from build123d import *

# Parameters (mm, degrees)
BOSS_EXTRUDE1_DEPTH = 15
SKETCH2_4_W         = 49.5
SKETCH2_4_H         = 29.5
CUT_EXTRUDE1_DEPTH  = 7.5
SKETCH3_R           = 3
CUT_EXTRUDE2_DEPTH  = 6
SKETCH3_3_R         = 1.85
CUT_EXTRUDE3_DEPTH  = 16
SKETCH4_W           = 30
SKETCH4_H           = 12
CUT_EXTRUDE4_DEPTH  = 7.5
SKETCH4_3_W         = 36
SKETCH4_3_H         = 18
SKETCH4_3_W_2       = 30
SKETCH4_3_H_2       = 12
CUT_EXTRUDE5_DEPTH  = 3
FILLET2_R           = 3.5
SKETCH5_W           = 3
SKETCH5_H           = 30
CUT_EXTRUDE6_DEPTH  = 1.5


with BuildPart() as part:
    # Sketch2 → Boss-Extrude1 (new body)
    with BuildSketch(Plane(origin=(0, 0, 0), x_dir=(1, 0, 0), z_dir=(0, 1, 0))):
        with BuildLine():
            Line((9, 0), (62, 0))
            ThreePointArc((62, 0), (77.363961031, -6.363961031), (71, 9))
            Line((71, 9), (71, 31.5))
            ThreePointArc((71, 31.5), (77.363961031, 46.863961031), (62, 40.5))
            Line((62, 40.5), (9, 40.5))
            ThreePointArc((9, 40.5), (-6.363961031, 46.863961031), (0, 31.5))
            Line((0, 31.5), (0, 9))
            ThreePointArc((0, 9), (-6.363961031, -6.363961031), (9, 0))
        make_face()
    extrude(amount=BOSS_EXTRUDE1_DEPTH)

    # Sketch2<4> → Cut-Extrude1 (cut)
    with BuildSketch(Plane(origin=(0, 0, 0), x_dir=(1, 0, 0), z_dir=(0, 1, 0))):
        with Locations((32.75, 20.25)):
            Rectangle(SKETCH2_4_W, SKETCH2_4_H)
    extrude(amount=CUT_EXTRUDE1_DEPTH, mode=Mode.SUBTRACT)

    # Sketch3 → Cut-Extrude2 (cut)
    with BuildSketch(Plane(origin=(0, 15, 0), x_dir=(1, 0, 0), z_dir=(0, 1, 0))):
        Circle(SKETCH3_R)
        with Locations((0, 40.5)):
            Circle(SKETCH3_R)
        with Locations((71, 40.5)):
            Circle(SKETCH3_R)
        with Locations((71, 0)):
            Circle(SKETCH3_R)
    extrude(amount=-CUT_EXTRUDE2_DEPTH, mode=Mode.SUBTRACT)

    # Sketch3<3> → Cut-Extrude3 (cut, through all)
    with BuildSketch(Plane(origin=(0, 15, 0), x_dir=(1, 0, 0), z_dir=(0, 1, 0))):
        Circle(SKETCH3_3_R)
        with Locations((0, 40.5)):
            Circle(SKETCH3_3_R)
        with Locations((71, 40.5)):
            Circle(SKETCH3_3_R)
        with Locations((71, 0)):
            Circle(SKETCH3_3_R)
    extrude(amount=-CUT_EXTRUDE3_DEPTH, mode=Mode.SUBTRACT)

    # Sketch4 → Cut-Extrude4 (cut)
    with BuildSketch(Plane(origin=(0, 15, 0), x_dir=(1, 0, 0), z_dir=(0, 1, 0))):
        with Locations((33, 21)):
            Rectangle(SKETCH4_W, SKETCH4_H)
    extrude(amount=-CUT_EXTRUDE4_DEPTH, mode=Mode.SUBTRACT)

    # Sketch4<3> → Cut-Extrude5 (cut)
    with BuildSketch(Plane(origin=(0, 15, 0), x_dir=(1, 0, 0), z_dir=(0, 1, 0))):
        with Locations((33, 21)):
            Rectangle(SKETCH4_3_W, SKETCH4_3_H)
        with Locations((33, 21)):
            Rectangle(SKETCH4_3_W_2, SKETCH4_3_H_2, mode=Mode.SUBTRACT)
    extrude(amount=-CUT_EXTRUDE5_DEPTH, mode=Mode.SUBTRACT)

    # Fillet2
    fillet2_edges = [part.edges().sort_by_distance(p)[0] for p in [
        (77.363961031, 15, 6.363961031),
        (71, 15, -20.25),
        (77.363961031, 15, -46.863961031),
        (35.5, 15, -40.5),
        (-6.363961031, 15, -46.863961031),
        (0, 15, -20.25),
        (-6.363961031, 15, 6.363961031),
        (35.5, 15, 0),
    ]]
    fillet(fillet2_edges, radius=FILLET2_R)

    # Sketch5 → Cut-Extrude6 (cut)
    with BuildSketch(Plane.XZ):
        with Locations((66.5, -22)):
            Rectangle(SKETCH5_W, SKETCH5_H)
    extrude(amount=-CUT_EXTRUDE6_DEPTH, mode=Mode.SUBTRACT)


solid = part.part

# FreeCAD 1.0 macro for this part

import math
import FreeCAD as App
import Part
import Sketcher
Q = App.Units.Quantity


def edges_at(feature, points):
    """Names of the edges that pass closest to the given points."""
    edges = feature.Shape.Edges
    near = lambda p: min(range(len(edges)), key=lambda i: edges[i].distToShape(Part.Vertex(*p))[0])
    return sorted({f"Edge{near(p) + 1}" for p in points})


def add_polygon(sketch, points):
    """Adds a closed chain of lines whose ends are joined by coincident constraints."""
    first, n = sketch.GeometryCount, len(points)
    for a, b in zip(points, points[1:] + points[:1]):
        sketch.addGeometry(Part.LineSegment(App.Vector(*a, 0), App.Vector(*b, 0)), False)
    for i in range(n):
        sketch.addConstraint(Sketcher.Constraint("Coincident", first + i, 2, first + (i + 1) % n, 1))

doc = App.newDocument("Part")
body = doc.addObject("PartDesign::Body", "Body")

# Sketch on XZ plane
sketch1 = body.newObject("Sketcher::SketchObject", "Sketch")
sketch1.AttachmentSupport = (doc.getObject("XZ_Plane"), [""])
sketch1.MapMode = "FlatFace"
sketch1.addGeometry([
    Part.LineSegment(App.Vector(9, 0, 0), App.Vector(62, 0, 0)),  # 0
    Part.ArcOfCircle(Part.Circle(App.Vector(71, 0, 0), App.Vector(0, 0, 1), 9), math.radians(-90), math.radians(180)),  # 1
    Part.LineSegment(App.Vector(71, -9, 0), App.Vector(71, -32, 0)),  # 2
    Part.ArcOfCircle(Part.Circle(App.Vector(71, -40, 0), App.Vector(0, 0, 1), 9), math.radians(180), math.radians(450)),  # 3
    Part.LineSegment(App.Vector(62, -40, 0), App.Vector(9, -40, 0)),  # 4
    Part.ArcOfCircle(Part.Circle(App.Vector(0, -40, 0), App.Vector(0, 0, 1), 9), math.radians(90), math.radians(360)),  # 5
    Part.LineSegment(App.Vector(0, -32, 0), App.Vector(0, -9, 0)),  # 6
    Part.ArcOfCircle(Part.Circle(App.Vector(0, 0, 0), App.Vector(0, 0, 1), 9), math.radians(0), math.radians(270)),  # 7
], False)
sketch1.addConstraint([
    Sketcher.Constraint("Coincident", 0, 2, 1, 2),
    Sketcher.Constraint("Coincident", 1, 1, 2, 1),
    Sketcher.Constraint("Coincident", 2, 2, 3, 2),
    Sketcher.Constraint("Coincident", 3, 1, 4, 1),
    Sketcher.Constraint("Coincident", 4, 2, 5, 2),
    Sketcher.Constraint("Coincident", 5, 1, 6, 1),
    Sketcher.Constraint("Coincident", 6, 2, 7, 2),
    Sketcher.Constraint("Coincident", 7, 1, 0, 1),
    Sketcher.Constraint("Horizontal", 0),
    Sketcher.Constraint("Vertical", 2),
    Sketcher.Constraint("Horizontal", 4),
    Sketcher.Constraint("Vertical", 6),
    Sketcher.Constraint("Coincident", 7, 3, -1, 1),
    Sketcher.Constraint("Equal", 1, 3),
    Sketcher.Constraint("Equal", 3, 5),
    Sketcher.Constraint("Equal", 5, 7),
    Sketcher.Constraint("PointOnObject", 1, 3, -1),
    Sketcher.Constraint("PointOnObject", 5, 3, -2),
    Sketcher.Constraint("PointOnObject", 0, 2, -1),
    Sketcher.Constraint("PointOnObject", 5, 1, -2),
    Sketcher.Constraint("Horizontal", 3, 3, 5, 3),
    Sketcher.Constraint("Horizontal", 5, 3, 3, 1),
    Sketcher.Constraint("Vertical", 1, 3, 3, 3),
    Sketcher.Constraint("Vertical", 3, 3, 1, 1),
    Sketcher.Constraint("Radius", 1, Q("9 mm")),
    Sketcher.Constraint("DistanceX", 0, 1, 0, 2, Q("53 mm")),
    Sketcher.Constraint("DistanceY", 2, 2, 2, 1, Q("22.5 mm")),
])
pad1 = body.newObject("PartDesign::Pad", "Pad")
pad1.Profile = sketch1
pad1.Length = 15
pad1.Reversed = True

# Sketch on XZ plane
sketch2 = body.newObject("Sketcher::SketchObject", "Sketch001")
sketch2.AttachmentSupport = (doc.getObject("XZ_Plane"), [""])
sketch2.MapMode = "FlatFace"
add_polygon(sketch2, [(8, -35), (8, -6), (58, -6), (58, -35)])  # lines 0-3
sketch2.addConstraint([
    Sketcher.Constraint("Vertical", 0),
    Sketcher.Constraint("Horizontal", 1),
    Sketcher.Constraint("Vertical", 2),
    Sketcher.Constraint("Horizontal", 3),
    Sketcher.Constraint("DistanceX", 1, 1, 1, 2, Q("49.5 mm")),
    Sketcher.Constraint("DistanceY", 0, 1, 0, 2, Q("29.5 mm")),
    Sketcher.Constraint("DistanceX", -1, 1, 0, 2, Q("8 mm")),
    Sketcher.Constraint("DistanceY", 2, 2, -1, 1, Q("35 mm")),
])
pocket1 = body.newObject("PartDesign::Pocket", "Pocket")
pocket1.Profile = sketch2
pocket1.Length = 7.5

# Sketch on XZ plane
sketch3 = body.newObject("Sketcher::SketchObject", "Sketch002")
sketch3.AttachmentSupport = (doc.getObject("XZ_Plane"), [""])
sketch3.MapMode = "FlatFace"
sketch3.AttachmentOffset = App.Placement(App.Vector(0, 0, -15), App.Rotation())
sketch3.addGeometry([
    Part.Circle(App.Vector(0, 0, 0), App.Vector(0, 0, 1), 3),
    Part.Circle(App.Vector(0, -40.5, 0), App.Vector(0, 0, 1), 3),
    Part.Circle(App.Vector(71, -40.5, 0), App.Vector(0, 0, 1), 3),
    Part.Circle(App.Vector(71, 0, 0), App.Vector(0, 0, 1), 3),
], False)
sketch3.addConstraint([
    Sketcher.Constraint("Coincident", 0, 3, -1, 1),
    Sketcher.Constraint("Equal", 0, 1),
    Sketcher.Constraint("Equal", 1, 2),
    Sketcher.Constraint("Equal", 2, 3),
    Sketcher.Constraint("PointOnObject", 1, 3, -2),
    Sketcher.Constraint("PointOnObject", 3, 3, -1),
    Sketcher.Constraint("Horizontal", 1, 3, 2, 3),
    Sketcher.Constraint("Vertical", 2, 3, 3, 3),
    Sketcher.Constraint("Diameter", 0, Q("6 mm")),
    Sketcher.Constraint("DistanceX", -1, 1, 2, 3, Q("71 mm")),
    Sketcher.Constraint("DistanceY", 1, 3, -1, 1, Q("40.5 mm")),
])
pocket2 = body.newObject("PartDesign::Pocket", "Pocket001")
pocket2.Profile = sketch3
pocket2.Length = 6
pocket2.Reversed = True

# Sketch on XZ plane
sketch4 = body.newObject("Sketcher::SketchObject", "Sketch003")
sketch4.AttachmentSupport = (doc.getObject("XZ_Plane"), [""])
sketch4.MapMode = "FlatFace"
sketch4.AttachmentOffset = App.Placement(App.Vector(0, 0, -15), App.Rotation())
sketch4.addGeometry([
    Part.Circle(App.Vector(0, 0, 0), App.Vector(0, 0, 1), 1.9),
    Part.Circle(App.Vector(0, -40.5, 0), App.Vector(0, 0, 1), 1.9),
    Part.Circle(App.Vector(71, -40.5, 0), App.Vector(0, 0, 1), 1.9),
    Part.Circle(App.Vector(71, 0, 0), App.Vector(0, 0, 1), 1.9),
], False)
sketch4.addConstraint([
    Sketcher.Constraint("Coincident", 0, 3, -1, 1),
    Sketcher.Constraint("Equal", 0, 1),
    Sketcher.Constraint("Equal", 1, 2),
    Sketcher.Constraint("Equal", 2, 3),
    Sketcher.Constraint("PointOnObject", 1, 3, -2),
    Sketcher.Constraint("PointOnObject", 3, 3, -1),
    Sketcher.Constraint("Horizontal", 1, 3, 2, 3),
    Sketcher.Constraint("Vertical", 2, 3, 3, 3),
    Sketcher.Constraint("Diameter", 0, Q("3.7 mm")),
    Sketcher.Constraint("DistanceX", -1, 1, 2, 3, Q("71 mm")),
    Sketcher.Constraint("DistanceY", 1, 3, -1, 1, Q("40.5 mm")),
])
pocket3 = body.newObject("PartDesign::Pocket", "Pocket002")
pocket3.Profile = sketch4
pocket3.Type = "ThroughAll"
pocket3.Reversed = True

# Sketch on XZ plane
sketch5 = body.newObject("Sketcher::SketchObject", "Sketch004")
sketch5.AttachmentSupport = (doc.getObject("XZ_Plane"), [""])
sketch5.MapMode = "FlatFace"
sketch5.AttachmentOffset = App.Placement(App.Vector(0, 0, -15), App.Rotation())
add_polygon(sketch5, [(18, -27), (18, -15), (48, -15), (48, -27)])  # lines 0-3
sketch5.addConstraint([
    Sketcher.Constraint("Vertical", 0),
    Sketcher.Constraint("Horizontal", 1),
    Sketcher.Constraint("Vertical", 2),
    Sketcher.Constraint("Horizontal", 3),
    Sketcher.Constraint("DistanceX", 1, 1, 1, 2, Q("30 mm")),
    Sketcher.Constraint("DistanceY", 0, 1, 0, 2, Q("12 mm")),
    Sketcher.Constraint("DistanceX", -1, 1, 0, 2, Q("18 mm")),
    Sketcher.Constraint("DistanceY", 0, 2, -1, 1, Q("15 mm")),
])
pocket4 = body.newObject("PartDesign::Pocket", "Pocket003")
pocket4.Profile = sketch5
pocket4.Length = 7.5
pocket4.Reversed = True

# Sketch on XZ plane
sketch6 = body.newObject("Sketcher::SketchObject", "Sketch005")
sketch6.AttachmentSupport = (doc.getObject("XZ_Plane"), [""])
sketch6.MapMode = "FlatFace"
sketch6.AttachmentOffset = App.Placement(App.Vector(0, 0, -15), App.Rotation())
add_polygon(sketch6, [(15, -30), (15, -12), (51, -12), (51, -30)])  # lines 0-3
add_polygon(sketch6, [(48, -15), (18, -15), (18, -27), (48, -27)])  # lines 4-7
sketch6.addConstraint([
    Sketcher.Constraint("Vertical", 0),
    Sketcher.Constraint("Horizontal", 1),
    Sketcher.Constraint("Vertical", 2),
    Sketcher.Constraint("Horizontal", 3),
    Sketcher.Constraint("Horizontal", 4),
    Sketcher.Constraint("Vertical", 5),
    Sketcher.Constraint("Horizontal", 6),
    Sketcher.Constraint("Vertical", 7),
    Sketcher.Constraint("DistanceX", 1, 1, 1, 2, Q("36 mm")),
    Sketcher.Constraint("DistanceX", 4, 2, 4, 1, Q("30 mm")),
    Sketcher.Constraint("DistanceY", 0, 1, 0, 2, Q("18 mm")),
    Sketcher.Constraint("DistanceY", 5, 2, 5, 1, Q("12 mm")),
    Sketcher.Constraint("DistanceX", -1, 1, 0, 2, Q("15 mm")),
    Sketcher.Constraint("DistanceY", 0, 2, -1, 1, Q("12 mm")),
    Sketcher.Constraint("DistanceX", -1, 1, 4, 2, Q("18 mm")),
    Sketcher.Constraint("DistanceY", 4, 2, -1, 1, Q("15 mm")),
])
pocket5 = body.newObject("PartDesign::Pocket", "Pocket004")
pocket5.Profile = sketch6
pocket5.Length = 3
pocket5.Reversed = True
doc.recompute()

fillet = body.newObject("PartDesign::Fillet", "Fillet")
fillet.Base = (pocket5, edges_at(pocket5, [
    (77.364, 15, 6.364),
    (71, 15, -20.25),
    (77.364, 15, -46.864),
    (35.5, 15, -40.5),
    (-6.364, 15, -46.864),
    (0, 15, -20.25),
    (-6.364, 15, 6.364),
    (35.5, 15, 0),
]))
fillet.Radius = 3.5

# Sketch on XZ plane
sketch7 = body.newObject("Sketcher::SketchObject", "Sketch006")
sketch7.AttachmentSupport = (doc.getObject("XZ_Plane"), [""])
sketch7.MapMode = "FlatFace"
add_polygon(sketch7, [(65, -7), (65, -37), (68, -37), (68, -7)])  # lines 0-3
sketch7.addConstraint([
    Sketcher.Constraint("Vertical", 0),
    Sketcher.Constraint("Horizontal", 1),
    Sketcher.Constraint("Vertical", 2),
    Sketcher.Constraint("Horizontal", 3),
    Sketcher.Constraint("DistanceX", 1, 1, 1, 2, Q("3 mm")),
    Sketcher.Constraint("DistanceY", 0, 2, 0, 1, Q("30 mm")),
    Sketcher.Constraint("DistanceX", -1, 1, 0, 2, Q("65 mm")),
    Sketcher.Constraint("DistanceY", 0, 2, -1, 1, Q("37 mm")),
])
pocket6 = body.newObject("PartDesign::Pocket", "Pocket005")
pocket6.Profile = sketch7
pocket6.Length = 1.5

doc.recompute()
